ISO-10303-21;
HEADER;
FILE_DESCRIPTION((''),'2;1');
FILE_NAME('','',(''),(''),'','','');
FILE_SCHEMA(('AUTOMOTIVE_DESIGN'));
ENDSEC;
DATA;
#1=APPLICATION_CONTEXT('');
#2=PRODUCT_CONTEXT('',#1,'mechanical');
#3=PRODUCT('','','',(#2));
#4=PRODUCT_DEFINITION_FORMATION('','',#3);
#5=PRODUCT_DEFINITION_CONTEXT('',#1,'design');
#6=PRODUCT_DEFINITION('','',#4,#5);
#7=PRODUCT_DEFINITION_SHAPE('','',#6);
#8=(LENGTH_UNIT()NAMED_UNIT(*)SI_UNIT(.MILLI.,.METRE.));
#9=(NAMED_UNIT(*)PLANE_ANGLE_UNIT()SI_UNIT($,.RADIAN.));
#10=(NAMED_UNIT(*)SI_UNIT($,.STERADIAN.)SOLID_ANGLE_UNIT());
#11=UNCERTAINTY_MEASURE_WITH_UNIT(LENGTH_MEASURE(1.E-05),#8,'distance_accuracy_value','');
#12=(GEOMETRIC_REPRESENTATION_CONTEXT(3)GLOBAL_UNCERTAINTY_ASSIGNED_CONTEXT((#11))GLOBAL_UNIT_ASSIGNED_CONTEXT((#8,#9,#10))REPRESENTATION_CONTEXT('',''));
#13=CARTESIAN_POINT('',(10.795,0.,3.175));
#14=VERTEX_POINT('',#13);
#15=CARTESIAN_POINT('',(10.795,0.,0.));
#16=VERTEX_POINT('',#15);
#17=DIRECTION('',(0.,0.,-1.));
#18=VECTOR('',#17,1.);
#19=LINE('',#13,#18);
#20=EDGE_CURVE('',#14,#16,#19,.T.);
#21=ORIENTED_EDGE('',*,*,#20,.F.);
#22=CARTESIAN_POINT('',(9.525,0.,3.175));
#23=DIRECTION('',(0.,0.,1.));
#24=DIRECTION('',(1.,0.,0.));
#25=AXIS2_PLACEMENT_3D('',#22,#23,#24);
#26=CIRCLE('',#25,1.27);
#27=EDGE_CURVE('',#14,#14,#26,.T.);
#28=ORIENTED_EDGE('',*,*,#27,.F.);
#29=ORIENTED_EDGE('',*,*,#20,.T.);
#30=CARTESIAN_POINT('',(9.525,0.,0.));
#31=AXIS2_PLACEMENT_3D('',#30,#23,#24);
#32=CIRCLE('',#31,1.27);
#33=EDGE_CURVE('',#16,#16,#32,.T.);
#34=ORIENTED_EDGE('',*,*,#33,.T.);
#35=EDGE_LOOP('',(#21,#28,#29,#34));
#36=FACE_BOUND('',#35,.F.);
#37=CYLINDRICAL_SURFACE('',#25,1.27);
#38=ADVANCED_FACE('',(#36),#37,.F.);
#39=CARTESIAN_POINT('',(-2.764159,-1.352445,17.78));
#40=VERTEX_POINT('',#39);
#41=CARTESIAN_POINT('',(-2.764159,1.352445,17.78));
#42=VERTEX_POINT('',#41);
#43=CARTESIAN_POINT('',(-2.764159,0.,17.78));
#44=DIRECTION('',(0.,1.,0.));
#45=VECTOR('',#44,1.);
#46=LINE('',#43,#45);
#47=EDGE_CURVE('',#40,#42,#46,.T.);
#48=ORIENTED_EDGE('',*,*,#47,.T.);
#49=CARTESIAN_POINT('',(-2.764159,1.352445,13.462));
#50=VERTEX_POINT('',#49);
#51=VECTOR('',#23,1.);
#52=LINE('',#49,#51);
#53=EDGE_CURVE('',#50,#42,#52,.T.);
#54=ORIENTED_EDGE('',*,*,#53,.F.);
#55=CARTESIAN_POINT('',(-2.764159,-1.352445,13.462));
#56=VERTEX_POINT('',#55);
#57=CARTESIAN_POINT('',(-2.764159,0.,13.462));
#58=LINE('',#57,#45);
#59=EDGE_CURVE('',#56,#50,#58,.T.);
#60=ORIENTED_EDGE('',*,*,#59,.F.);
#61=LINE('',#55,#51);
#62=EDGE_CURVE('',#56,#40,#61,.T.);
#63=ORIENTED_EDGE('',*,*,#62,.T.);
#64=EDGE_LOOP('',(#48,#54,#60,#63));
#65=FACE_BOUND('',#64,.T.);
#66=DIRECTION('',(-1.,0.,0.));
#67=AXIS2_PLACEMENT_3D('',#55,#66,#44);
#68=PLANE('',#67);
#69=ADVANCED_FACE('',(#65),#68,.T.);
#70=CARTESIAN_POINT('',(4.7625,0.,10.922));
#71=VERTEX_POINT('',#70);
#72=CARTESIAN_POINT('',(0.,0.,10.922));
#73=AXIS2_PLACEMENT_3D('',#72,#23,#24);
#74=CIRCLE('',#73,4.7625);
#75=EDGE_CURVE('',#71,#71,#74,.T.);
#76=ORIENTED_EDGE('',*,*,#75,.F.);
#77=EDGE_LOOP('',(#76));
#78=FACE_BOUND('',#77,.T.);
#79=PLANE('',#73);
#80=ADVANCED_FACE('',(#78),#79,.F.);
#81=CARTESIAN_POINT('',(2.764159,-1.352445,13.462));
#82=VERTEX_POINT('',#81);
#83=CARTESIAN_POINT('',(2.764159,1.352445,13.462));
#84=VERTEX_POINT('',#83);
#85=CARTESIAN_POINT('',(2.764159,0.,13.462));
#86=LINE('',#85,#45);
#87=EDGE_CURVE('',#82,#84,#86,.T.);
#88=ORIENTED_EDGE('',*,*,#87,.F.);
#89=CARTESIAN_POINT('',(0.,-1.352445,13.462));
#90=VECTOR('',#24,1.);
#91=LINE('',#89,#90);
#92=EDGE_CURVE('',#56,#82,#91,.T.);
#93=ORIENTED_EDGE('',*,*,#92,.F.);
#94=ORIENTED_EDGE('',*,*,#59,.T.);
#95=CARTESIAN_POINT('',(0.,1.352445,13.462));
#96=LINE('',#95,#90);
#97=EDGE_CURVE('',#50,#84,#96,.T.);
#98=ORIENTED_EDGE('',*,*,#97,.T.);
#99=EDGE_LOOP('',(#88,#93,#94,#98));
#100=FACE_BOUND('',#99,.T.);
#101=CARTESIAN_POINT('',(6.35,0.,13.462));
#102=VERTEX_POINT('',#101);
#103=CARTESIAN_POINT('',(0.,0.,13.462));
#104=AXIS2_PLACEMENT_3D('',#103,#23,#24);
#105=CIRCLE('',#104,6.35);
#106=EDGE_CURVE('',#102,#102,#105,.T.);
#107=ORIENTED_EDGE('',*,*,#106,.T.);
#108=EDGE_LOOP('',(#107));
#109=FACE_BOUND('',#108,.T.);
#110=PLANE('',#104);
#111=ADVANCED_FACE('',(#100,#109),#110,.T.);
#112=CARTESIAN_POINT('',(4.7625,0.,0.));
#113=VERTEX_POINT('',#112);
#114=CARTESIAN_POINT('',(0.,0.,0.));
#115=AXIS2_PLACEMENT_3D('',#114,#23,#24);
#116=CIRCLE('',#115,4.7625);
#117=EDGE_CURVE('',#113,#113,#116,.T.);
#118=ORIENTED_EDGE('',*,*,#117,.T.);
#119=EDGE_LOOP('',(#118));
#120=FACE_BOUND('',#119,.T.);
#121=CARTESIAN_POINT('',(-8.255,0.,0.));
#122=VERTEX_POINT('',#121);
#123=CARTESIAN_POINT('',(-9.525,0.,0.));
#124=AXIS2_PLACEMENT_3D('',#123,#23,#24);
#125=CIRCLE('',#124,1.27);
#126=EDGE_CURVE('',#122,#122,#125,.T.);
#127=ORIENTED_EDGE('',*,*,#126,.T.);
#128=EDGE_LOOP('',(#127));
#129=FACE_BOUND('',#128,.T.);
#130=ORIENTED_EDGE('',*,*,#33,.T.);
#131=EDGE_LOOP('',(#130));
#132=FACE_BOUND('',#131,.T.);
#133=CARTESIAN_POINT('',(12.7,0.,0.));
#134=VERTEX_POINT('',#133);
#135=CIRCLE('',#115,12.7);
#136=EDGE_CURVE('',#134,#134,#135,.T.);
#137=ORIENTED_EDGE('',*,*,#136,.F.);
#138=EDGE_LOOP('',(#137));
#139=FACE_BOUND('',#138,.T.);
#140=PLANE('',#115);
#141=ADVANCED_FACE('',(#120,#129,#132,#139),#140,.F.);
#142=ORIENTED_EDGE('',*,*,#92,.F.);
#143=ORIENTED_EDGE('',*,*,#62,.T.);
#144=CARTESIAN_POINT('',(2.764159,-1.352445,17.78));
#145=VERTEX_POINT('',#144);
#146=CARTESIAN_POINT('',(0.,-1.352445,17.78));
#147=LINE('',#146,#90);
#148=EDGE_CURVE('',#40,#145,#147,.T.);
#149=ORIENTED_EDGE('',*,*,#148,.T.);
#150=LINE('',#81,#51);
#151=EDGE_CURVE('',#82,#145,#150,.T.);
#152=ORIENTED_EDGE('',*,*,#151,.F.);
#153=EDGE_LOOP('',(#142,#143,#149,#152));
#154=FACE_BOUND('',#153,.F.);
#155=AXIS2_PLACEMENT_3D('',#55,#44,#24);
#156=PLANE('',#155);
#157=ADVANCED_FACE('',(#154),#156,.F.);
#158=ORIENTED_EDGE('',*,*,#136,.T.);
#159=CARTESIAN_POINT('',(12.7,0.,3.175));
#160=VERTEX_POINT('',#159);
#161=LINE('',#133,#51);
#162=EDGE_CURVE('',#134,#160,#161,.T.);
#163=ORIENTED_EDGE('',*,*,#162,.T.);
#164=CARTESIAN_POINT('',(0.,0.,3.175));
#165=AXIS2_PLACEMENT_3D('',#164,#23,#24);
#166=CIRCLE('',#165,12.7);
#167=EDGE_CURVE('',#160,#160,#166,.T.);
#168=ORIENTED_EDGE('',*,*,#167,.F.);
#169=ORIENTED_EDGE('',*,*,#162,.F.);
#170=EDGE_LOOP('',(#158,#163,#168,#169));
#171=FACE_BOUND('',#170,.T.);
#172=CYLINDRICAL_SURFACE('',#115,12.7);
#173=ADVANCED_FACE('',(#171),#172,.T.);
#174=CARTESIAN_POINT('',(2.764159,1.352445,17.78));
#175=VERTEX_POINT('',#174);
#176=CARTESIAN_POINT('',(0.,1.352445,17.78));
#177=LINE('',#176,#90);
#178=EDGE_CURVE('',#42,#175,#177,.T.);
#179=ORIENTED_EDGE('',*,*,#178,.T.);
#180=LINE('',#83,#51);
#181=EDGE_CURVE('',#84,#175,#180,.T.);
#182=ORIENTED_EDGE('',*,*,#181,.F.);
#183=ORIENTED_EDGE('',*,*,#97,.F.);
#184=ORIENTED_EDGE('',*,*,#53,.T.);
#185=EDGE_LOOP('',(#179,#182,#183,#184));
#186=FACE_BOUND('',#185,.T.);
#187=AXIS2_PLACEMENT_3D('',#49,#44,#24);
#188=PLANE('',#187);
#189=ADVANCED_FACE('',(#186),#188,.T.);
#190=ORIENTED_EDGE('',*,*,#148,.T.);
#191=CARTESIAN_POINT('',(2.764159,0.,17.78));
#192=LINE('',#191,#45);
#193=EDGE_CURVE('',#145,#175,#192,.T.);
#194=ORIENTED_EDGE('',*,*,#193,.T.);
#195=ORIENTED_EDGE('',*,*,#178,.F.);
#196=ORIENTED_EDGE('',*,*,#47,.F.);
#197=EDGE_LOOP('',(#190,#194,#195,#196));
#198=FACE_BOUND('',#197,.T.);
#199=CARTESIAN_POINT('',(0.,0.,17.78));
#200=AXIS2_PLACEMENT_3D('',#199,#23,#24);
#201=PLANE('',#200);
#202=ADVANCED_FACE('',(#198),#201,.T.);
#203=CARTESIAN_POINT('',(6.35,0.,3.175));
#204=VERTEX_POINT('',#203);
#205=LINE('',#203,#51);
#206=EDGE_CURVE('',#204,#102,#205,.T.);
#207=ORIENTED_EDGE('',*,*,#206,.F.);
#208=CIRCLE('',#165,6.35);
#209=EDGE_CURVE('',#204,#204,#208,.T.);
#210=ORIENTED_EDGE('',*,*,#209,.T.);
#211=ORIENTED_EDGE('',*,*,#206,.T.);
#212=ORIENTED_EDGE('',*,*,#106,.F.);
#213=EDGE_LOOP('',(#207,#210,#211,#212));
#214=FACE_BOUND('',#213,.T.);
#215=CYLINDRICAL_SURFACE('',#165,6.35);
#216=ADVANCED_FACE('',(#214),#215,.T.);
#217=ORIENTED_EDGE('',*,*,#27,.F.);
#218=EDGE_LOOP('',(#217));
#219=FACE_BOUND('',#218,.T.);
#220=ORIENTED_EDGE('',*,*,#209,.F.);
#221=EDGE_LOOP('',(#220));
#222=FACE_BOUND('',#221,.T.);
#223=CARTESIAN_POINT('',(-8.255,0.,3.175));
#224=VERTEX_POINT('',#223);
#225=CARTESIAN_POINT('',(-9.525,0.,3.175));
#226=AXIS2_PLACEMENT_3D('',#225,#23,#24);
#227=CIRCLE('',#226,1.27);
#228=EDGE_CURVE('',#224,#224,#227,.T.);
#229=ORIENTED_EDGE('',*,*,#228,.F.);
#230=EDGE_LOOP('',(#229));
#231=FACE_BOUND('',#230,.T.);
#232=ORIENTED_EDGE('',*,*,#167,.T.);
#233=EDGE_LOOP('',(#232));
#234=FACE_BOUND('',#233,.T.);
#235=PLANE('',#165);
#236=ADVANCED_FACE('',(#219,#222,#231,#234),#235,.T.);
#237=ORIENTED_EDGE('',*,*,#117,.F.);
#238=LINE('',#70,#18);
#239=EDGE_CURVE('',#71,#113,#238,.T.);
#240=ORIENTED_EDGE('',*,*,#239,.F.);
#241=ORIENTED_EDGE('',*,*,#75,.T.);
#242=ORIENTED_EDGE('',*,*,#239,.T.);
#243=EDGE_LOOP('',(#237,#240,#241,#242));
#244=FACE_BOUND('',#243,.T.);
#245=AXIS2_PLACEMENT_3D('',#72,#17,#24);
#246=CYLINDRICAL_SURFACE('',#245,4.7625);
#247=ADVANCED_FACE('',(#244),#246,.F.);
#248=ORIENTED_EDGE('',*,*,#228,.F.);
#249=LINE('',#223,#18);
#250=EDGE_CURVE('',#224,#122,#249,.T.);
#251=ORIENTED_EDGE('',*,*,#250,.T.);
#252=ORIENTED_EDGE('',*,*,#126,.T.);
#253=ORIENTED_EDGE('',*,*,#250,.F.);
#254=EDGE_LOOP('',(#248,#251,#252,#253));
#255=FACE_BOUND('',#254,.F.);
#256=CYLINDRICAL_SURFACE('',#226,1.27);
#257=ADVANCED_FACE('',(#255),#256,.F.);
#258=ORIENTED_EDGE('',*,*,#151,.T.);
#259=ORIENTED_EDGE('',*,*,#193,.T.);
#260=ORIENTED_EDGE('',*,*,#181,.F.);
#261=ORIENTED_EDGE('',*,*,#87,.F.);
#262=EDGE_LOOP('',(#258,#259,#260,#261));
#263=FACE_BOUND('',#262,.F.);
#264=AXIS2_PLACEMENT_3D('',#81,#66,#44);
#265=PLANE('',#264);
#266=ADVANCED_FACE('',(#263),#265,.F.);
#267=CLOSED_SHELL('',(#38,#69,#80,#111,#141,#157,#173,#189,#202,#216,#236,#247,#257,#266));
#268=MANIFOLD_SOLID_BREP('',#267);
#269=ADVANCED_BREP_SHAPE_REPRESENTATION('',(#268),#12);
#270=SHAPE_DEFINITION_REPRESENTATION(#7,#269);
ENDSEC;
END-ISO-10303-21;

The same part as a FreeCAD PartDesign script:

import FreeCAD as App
import Part
import Sketcher
from FreeCAD import Vector
Q = App.Units.Quantity

doc = App.newDocument("Part")
body = doc.addObject("PartDesign::Body", "Body")

sketch1 = body.newObject("Sketcher::SketchObject", "Sketch")
sketch1.AttachmentSupport = (doc.getObject("XZ_Plane"), [""])
sketch1.MapMode = "FlatFace"
sketch1.addGeometry([
    Part.LineSegment(Vector(6.3, 13.5, 0), Vector(0, 13.5, 0)),
    Part.LineSegment(Vector(0, 13.5, 0), Vector(0, 10.9, 0)),
    Part.LineSegment(Vector(0, 10.9, 0), Vector(4.8, 10.9, 0)),
    Part.LineSegment(Vector(4.8, 10.9, 0), Vector(4.8, 0, 0)),
    Part.LineSegment(Vector(4.8, 0, 0), Vector(12.7, 0, 0)),
    Part.LineSegment(Vector(12.7, 0, 0), Vector(12.7, 3.2, 0)),
    Part.LineSegment(Vector(12.7, 3.2, 0), Vector(6.3, 3.2, 0)),
    Part.LineSegment(Vector(6.3, 3.2, 0), Vector(6.3, 13.5, 0)),
], False)
sketch1.addConstraint([
    Sketcher.Constraint("Coincident", 0, 2, 1, 1),
    Sketcher.Constraint("Coincident", 1, 2, 2, 1),
    Sketcher.Constraint("Coincident", 2, 2, 3, 1),
    Sketcher.Constraint("Coincident", 3, 2, 4, 1),
    Sketcher.Constraint("Coincident", 4, 2, 5, 1),
    Sketcher.Constraint("Coincident", 5, 2, 6, 1),
    Sketcher.Constraint("Coincident", 6, 2, 7, 1),
    Sketcher.Constraint("Coincident", 7, 2, 0, 1),
    Sketcher.Constraint("Horizontal", 0),
    Sketcher.Constraint("Vertical", 1),
    Sketcher.Constraint("Horizontal", 2),
    Sketcher.Constraint("Vertical", 3),
    Sketcher.Constraint("Horizontal", 4),
    Sketcher.Constraint("Vertical", 5),
    Sketcher.Constraint("Horizontal", 6),
    Sketcher.Constraint("Vertical", 7),
    Sketcher.Constraint("PointOnObject", 0, 2, -2),
    Sketcher.Constraint("PointOnObject", 3, 2, -1),
    Sketcher.Constraint("Equal", 0, 6),
    Sketcher.Constraint("DistanceY", 1, 2, 1, 1, Q("0.1 in")),
    Sketcher.Constraint("DistanceX", 0, 2, 0, 1, Q("0.25 in")),
    Sketcher.Constraint("DistanceY", 3, 2, 3, 1, Q("0.43 in")),
    Sketcher.Constraint("DistanceX", 2, 1, 2, 2, Q("0.1875 in")),
    Sketcher.Constraint("DistanceY", 5, 1, 5, 2, Q("0.125 in")),
])
revolution = body.newObject("PartDesign::Revolution", "Revolution")
revolution.Profile = sketch1
revolution.ReferenceAxis = (sketch1, ["V_Axis"])
revolution.Angle = 360

sketch2 = body.newObject("Sketcher::SketchObject", "Sketch001")
sketch2.AttachmentSupport = (doc.getObject("XY_Plane"), [""])
sketch2.MapMode = "FlatFace"
sketch2.AttachmentOffset = App.Placement(Vector(0, 0, 0.53 * 25.4), App.Rotation())
sketch2.addGeometry([
    Part.LineSegment(Vector(-2.8, 1.4, 0), Vector(-2.8, -1.4, 0)),
    Part.LineSegment(Vector(-2.8, -1.4, 0), Vector(2.8, -1.4, 0)),
    Part.LineSegment(Vector(2.8, -1.4, 0), Vector(2.8, 1.4, 0)),
    Part.LineSegment(Vector(2.8, 1.4, 0), Vector(-2.8, 1.4, 0)),
], False)
sketch2.addConstraint([
    Sketcher.Constraint("Coincident", 0, 2, 1, 1),
    Sketcher.Constraint("Coincident", 1, 2, 2, 1),
    Sketcher.Constraint("Coincident", 2, 2, 3, 1),
    Sketcher.Constraint("Coincident", 3, 2, 0, 1),
    Sketcher.Constraint("Vertical", 0),
    Sketcher.Constraint("Horizontal", 1),
    Sketcher.Constraint("Vertical", 2),
    Sketcher.Constraint("Horizontal", 3),
    Sketcher.Constraint("Symmetric", 0, 2, 2, 2, -1, 1),
    Sketcher.Constraint("DistanceY", 0, 2, 0, 1, 2.70489),
    Sketcher.Constraint("DistanceX", 1, 1, 1, 2, 5.528318),
])
pad1 = body.newObject("PartDesign::Pad", "Pad")
pad1.Profile = sketch2
pad1.Length = Q("0.17 in")

sketch3 = body.newObject("Sketcher::SketchObject", "Sketch002")
sketch3.AttachmentSupport = (doc.getObject("XY_Plane"), [""])
sketch3.MapMode = "FlatFace"
sketch3.AttachmentOffset = App.Placement(Vector(0, 0, 0.125 * 25.4), App.Rotation())
sketch3.addGeometry([
    Part.Circle(Vector(-9.5, 0, 0), Vector(0, 0, 1), 1.3),
    Part.Circle(Vector(9.5, 0, 0), Vector(0, 0, 1), 1.3),
], False)
sketch3.addConstraint([
    Sketcher.Constraint("Equal", 0, 1),
    Sketcher.Constraint("Symmetric", 0, 3, 1, 3, -1, 1),
    Sketcher.Constraint("PointOnObject", 0, 3, -1),
    Sketcher.Constraint("Diameter", 0, Q("0.1 in")),
    Sketcher.Constraint("DistanceX", 0, 3, 1, 3, Q("0.75 in")),
])
pocket1 = body.newObject("PartDesign::Pocket", "Pocket")
pocket1.Profile = sketch3
pocket1.Type = "ThroughAll"

doc.recompute()
